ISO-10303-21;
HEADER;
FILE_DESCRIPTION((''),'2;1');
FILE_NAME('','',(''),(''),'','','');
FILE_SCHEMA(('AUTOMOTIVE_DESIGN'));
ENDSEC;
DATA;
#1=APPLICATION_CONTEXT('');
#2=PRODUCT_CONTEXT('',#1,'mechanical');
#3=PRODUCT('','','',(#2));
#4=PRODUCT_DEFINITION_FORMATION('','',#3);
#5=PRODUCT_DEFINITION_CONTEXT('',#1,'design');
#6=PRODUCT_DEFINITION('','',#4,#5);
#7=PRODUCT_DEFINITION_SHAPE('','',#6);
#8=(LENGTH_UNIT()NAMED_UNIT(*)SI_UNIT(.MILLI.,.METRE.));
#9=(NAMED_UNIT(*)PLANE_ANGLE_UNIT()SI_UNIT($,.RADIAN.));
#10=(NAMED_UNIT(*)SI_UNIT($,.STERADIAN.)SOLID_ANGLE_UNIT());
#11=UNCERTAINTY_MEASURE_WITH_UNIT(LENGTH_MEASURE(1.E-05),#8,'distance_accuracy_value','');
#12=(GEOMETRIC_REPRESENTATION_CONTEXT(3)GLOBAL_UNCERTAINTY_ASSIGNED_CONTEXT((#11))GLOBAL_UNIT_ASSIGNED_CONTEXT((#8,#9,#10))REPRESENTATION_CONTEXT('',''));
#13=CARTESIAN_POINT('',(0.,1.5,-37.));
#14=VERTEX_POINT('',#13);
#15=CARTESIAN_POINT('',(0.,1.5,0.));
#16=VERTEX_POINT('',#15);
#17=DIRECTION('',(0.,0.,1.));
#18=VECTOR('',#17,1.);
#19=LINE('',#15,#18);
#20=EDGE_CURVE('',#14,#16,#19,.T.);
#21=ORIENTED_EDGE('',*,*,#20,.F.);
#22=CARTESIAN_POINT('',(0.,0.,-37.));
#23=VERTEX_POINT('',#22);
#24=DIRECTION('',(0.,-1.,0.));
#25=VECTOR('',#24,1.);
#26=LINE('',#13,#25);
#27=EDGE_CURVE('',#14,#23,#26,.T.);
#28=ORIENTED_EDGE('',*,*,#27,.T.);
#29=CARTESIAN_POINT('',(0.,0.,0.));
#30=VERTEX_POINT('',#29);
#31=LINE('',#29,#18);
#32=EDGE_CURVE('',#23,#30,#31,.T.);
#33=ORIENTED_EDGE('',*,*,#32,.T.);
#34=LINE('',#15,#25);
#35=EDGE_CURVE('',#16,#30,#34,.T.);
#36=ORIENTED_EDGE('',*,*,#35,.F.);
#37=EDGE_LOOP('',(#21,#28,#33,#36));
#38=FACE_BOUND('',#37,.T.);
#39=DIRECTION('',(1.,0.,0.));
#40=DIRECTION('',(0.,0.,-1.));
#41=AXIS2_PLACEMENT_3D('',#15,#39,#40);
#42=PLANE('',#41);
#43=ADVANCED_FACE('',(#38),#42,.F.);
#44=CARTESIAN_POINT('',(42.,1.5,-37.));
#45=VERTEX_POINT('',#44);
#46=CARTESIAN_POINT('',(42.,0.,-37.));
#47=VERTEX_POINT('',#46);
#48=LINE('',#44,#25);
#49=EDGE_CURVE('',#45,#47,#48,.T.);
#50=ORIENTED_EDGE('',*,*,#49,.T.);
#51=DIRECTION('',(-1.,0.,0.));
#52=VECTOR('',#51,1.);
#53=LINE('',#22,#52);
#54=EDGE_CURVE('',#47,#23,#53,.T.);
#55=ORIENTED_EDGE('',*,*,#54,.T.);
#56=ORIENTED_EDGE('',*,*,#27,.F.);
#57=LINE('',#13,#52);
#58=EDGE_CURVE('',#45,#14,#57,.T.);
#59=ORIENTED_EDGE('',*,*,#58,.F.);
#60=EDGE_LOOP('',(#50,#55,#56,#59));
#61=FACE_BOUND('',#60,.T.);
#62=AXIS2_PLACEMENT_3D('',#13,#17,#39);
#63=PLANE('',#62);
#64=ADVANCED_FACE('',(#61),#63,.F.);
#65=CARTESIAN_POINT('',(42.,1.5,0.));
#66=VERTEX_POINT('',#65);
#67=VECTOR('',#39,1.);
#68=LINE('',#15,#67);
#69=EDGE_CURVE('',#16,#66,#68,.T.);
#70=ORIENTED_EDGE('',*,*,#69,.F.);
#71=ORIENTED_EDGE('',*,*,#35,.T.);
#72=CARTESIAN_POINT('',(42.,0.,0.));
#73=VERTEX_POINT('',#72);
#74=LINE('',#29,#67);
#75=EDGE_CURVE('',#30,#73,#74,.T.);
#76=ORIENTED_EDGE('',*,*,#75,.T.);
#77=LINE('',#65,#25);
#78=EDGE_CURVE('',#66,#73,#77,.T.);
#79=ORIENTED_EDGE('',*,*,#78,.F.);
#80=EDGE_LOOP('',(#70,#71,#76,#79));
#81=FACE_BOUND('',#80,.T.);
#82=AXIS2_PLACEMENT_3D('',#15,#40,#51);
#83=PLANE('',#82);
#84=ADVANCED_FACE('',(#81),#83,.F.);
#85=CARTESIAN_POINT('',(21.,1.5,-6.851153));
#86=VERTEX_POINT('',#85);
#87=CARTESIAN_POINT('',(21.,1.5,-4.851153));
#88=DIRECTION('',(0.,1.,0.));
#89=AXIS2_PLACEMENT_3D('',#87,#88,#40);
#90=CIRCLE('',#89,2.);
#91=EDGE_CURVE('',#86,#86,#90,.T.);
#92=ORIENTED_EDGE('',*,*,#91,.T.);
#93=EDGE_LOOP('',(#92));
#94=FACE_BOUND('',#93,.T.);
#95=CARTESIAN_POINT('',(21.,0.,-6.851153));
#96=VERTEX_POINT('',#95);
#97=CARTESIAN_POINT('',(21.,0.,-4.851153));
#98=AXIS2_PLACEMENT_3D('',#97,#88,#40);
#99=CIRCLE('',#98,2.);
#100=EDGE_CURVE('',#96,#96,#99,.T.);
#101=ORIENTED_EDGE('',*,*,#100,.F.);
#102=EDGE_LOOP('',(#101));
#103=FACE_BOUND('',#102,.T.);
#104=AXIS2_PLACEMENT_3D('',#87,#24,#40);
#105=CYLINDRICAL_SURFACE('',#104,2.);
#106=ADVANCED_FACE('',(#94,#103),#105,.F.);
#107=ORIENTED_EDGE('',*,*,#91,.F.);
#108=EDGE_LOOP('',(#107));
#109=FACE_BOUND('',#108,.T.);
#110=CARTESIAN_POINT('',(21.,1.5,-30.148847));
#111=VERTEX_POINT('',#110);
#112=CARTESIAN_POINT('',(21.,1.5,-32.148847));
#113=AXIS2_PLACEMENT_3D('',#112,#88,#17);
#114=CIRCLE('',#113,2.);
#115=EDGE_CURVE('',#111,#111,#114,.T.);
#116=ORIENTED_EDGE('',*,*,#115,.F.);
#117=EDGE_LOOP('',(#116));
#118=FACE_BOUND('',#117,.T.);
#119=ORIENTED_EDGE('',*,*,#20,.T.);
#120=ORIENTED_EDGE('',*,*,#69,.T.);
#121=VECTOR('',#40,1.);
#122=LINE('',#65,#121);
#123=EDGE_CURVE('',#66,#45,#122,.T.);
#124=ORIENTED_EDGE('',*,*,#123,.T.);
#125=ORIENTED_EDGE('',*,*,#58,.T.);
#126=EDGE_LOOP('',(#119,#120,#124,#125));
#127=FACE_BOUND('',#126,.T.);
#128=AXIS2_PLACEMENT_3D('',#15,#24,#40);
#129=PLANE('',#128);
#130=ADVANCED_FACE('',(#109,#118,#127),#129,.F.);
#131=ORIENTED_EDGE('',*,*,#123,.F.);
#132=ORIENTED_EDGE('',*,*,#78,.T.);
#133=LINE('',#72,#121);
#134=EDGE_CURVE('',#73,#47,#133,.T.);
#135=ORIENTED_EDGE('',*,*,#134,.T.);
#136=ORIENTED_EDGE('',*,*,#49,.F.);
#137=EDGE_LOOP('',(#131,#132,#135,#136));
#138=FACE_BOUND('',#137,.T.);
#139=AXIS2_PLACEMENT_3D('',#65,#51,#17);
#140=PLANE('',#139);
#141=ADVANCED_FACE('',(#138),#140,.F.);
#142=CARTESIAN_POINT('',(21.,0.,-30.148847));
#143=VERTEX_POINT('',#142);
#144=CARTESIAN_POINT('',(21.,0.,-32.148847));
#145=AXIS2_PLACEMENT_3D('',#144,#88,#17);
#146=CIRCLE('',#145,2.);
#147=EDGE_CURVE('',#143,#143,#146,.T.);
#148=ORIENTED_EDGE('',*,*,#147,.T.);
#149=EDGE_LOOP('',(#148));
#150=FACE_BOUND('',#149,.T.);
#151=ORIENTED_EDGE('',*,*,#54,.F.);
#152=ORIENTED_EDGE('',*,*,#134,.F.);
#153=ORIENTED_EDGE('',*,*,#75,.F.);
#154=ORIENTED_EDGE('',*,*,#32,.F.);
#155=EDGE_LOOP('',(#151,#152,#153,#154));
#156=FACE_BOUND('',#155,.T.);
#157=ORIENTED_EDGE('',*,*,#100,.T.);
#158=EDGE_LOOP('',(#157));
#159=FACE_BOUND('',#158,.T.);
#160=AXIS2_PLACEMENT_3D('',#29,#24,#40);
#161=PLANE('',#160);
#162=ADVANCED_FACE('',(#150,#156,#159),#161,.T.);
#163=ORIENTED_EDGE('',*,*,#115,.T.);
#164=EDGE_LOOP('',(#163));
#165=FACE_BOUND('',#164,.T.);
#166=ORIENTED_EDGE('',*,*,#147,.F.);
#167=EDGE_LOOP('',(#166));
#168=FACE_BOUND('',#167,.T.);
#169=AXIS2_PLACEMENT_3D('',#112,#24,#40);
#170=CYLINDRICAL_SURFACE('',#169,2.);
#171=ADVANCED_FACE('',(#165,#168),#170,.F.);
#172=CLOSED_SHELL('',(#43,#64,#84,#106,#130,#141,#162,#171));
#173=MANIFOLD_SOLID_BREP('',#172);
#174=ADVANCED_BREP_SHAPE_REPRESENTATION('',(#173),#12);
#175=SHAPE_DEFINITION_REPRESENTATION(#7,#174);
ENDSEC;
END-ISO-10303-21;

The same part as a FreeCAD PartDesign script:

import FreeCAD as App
import Part
import Sketcher

V = App.Vector
Q = App.Units.Quantity

doc = App.newDocument("Part")
body = doc.addObject("PartDesign::Body", "Body")

# Sketch on XZ plane
sketch1 = body.newObject("Sketcher::SketchObject", "Sketch")
sketch1.AttachmentSupport = (doc.getObject("XZ_Plane"), [""])
sketch1.MapMode = "FlatFace"
sketch1.addGeometry([
    Part.LineSegment(V(0, -37, 0), V(0, 0, 0)),  # 0
    Part.LineSegment(V(0, 0, 0), V(42, 0, 0)),  # 1
    Part.LineSegment(V(42, 0, 0), V(42, -37, 0)),  # 2
    Part.LineSegment(V(42, -37, 0), V(0, -37, 0)),  # 3
    Part.Circle(V(21, -4.9, 0), V(0, 0, 1), 2),  # 4
    Part.Circle(V(21, -32.1, 0), V(0, 0, 1), 2),  # 5
], False)
sketch1.addConstraint([
    Sketcher.Constraint("Coincident", 0, 2, 1, 1),
    Sketcher.Constraint("Coincident", 1, 2, 2, 1),
    Sketcher.Constraint("Coincident", 2, 2, 3, 1),
    Sketcher.Constraint("Coincident", 3, 2, 0, 1),
    Sketcher.Constraint("Vertical", 0),
    Sketcher.Constraint("Horizontal", 1),
    Sketcher.Constraint("Vertical", 2),
    Sketcher.Constraint("Horizontal", 3),
    Sketcher.Constraint("Coincident", 0, 2, -1, 1),
    Sketcher.Constraint("Equal", 4, 5),
    Sketcher.Constraint("Vertical", 4, 3, 5, 3),
    Sketcher.Constraint("Diameter", 4, Q("4 mm")),
    Sketcher.Constraint("DistanceX", 1, 1, 1, 2, Q("42 mm")),
    Sketcher.Constraint("DistanceY", 0, 1, 0, 2, Q("37 mm")),
    Sketcher.Constraint("DistanceX", -1, 1, 4, 3, Q("21 mm")),
    Sketcher.Constraint("DistanceY", 4, 3, -1, 1, Q("4.851153 mm")),
    Sketcher.Constraint("DistanceY", 5, 3, -1, 1, Q("32.148847 mm")),
])
pad1 = body.newObject("PartDesign::Pad", "Pad")
pad1.Profile = sketch1
pad1.Length = 1.5
pad1.Reversed = True

doc.recompute()
